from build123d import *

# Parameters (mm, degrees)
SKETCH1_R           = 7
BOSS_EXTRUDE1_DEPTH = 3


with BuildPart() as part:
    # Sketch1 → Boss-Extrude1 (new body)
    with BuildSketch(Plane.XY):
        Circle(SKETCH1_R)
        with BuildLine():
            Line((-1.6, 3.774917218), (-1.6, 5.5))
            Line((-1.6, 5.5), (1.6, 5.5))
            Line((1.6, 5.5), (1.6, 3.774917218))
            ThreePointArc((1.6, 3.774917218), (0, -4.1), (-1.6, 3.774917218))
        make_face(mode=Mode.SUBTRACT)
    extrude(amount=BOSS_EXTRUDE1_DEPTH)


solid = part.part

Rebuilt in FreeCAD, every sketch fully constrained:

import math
import FreeCAD as App
import Part
import Sketcher

V = App.Vector
Q = App.Units.Quantity

doc = App.newDocument("Part")
params = doc.addObject("Spreadsheet::Sheet", "Params")
for row, (alias, value) in enumerate([
    ("sketch1_diameter", "14 mm"),
    ("sketch1_radius", "4.1 mm"),
    ("sketch1_width", "3.2 mm"),
    ("pad1_length", "3 mm"),
], start=1):
    params.set(f"A{row}", alias)
    params.set(f"B{row}", "=" + value)
    params.setAlias(f"B{row}", alias)

body = doc.addObject("PartDesign::Body", "Body")

# Sketch on XY plane
sketch1 = body.newObject("Sketcher::SketchObject", "Sketch")
sketch1.AttachmentSupport = (doc.getObject("XY_Plane"), [""])
sketch1.MapMode = "FlatFace"
sketch1.addGeometry([
    Part.Circle(V(0, 0, 0), V(0, 0, 1), 7),  # 0
    Part.ArcOfCircle(Part.Circle(V(0, 0, 0), V(0, 0, 1), 4.1), math.radians(113), math.radians(427)),  # 1
    Part.LineSegment(V(-1.6, 3.8, 0), V(-1.6, 5.5, 0)),  # 2
    Part.LineSegment(V(-1.6, 5.5, 0), V(1.6, 5.5, 0)),  # 3
    Part.LineSegment(V(1.6, 5.5, 0), V(1.6, 3.8, 0)),  # 4
], False)
sketch1.addConstraint([
    Sketcher.Constraint("Coincident", 1, 1, 2, 1),
    Sketcher.Constraint("Coincident", 2, 2, 3, 1),
    Sketcher.Constraint("Coincident", 3, 2, 4, 1),
    Sketcher.Constraint("Coincident", 4, 2, 1, 2),
    Sketcher.Constraint("Vertical", 2),
    Sketcher.Constraint("Horizontal", 3),
    Sketcher.Constraint("Vertical", 4),
    Sketcher.Constraint("Coincident", 0, 3, -1, 1),
    Sketcher.Constraint("Coincident", 1, 3, -1, 1),
    Sketcher.Constraint("Horizontal", 1, 1, 4, 2),
    Sketcher.Constraint("Diameter", 0, Q("14 mm")),
    Sketcher.Constraint("Radius", 1, Q("4.1 mm")),
    Sketcher.Constraint("DistanceX", 3, 1, 3, 2, Q("3.2 mm")),
    Sketcher.Constraint("DistanceY", -1, 1, 2, 2, Q("5.5 mm")),
])
sketch1.setExpression("Constraints[10]", "Params.sketch1_diameter")
sketch1.setExpression("Constraints[11]", "Params.sketch1_radius")
sketch1.setExpression("Constraints[12]", "Params.sketch1_width")
pad1 = body.newObject("PartDesign::Pad", "Pad")
pad1.Profile = sketch1
pad1.setExpression("Length", "Params.pad1_length")

doc.recompute()
